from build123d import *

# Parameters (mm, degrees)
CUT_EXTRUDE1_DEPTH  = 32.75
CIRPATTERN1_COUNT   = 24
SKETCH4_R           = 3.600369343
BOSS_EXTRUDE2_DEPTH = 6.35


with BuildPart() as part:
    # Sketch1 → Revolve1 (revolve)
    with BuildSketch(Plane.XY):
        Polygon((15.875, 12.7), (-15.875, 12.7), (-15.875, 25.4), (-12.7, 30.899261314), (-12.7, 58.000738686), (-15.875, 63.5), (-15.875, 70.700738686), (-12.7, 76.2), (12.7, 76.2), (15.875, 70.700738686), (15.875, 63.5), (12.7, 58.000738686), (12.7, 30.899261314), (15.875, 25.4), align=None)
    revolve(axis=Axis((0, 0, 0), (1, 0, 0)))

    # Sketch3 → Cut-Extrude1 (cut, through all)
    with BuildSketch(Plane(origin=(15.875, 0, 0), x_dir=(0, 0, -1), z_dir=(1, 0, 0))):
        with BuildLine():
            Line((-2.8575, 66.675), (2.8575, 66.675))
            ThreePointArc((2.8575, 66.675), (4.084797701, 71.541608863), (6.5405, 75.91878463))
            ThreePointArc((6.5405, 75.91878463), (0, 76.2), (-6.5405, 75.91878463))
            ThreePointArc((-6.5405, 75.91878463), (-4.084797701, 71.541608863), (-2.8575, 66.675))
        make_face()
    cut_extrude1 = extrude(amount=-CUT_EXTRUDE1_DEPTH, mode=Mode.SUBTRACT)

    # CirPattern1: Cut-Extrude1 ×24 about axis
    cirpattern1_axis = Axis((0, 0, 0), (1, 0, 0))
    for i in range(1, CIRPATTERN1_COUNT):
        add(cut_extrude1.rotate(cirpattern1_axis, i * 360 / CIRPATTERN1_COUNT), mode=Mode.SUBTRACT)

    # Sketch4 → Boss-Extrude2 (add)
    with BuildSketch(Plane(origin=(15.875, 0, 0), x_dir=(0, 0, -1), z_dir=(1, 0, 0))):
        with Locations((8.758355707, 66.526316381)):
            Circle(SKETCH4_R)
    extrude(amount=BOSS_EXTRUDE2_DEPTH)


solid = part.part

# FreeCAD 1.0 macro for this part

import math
import FreeCAD as App
import Part
import Sketcher
Q = App.Units.Quantity

doc = App.newDocument("Part")
body = doc.addObject("PartDesign::Body", "Body")

# Sketch on XY plane
sketch1 = body.newObject("Sketcher::SketchObject", "Sketch")
sketch1.AttachmentSupport = (doc.getObject("XY_Plane"), [""])
sketch1.MapMode = "FlatFace"
sketch1.addGeometry(Part.LineSegment(App.Vector(-16, 13, 0), App.Vector(16, 13, 0)), False)
sketch1.addGeometry(Part.LineSegment(App.Vector(16, 13, 0), App.Vector(16, 25, 0)), False)
sketch1.addGeometry(Part.LineSegment(App.Vector(16, 25, 0), App.Vector(13, 31, 0)), False)
sketch1.addGeometry(Part.LineSegment(App.Vector(13, 31, 0), App.Vector(13, 58, 0)), False)
sketch1.addGeometry(Part.LineSegment(App.Vector(13, 58, 0), App.Vector(16, 64, 0)), False)
sketch1.addGeometry(Part.LineSegment(App.Vector(16, 64, 0), App.Vector(16, 71, 0)), False)
sketch1.addGeometry(Part.LineSegment(App.Vector(16, 71, 0), App.Vector(13, 76, 0)), False)
sketch1.addGeometry(Part.LineSegment(App.Vector(13, 76, 0), App.Vector(-13, 76, 0)), False)
sketch1.addGeometry(Part.LineSegment(App.Vector(-13, 76, 0), App.Vector(-16, 71, 0)), False)
sketch1.addGeometry(Part.LineSegment(App.Vector(-16, 71, 0), App.Vector(-16, 64, 0)), False)
sketch1.addGeometry(Part.LineSegment(App.Vector(-16, 64, 0), App.Vector(-13, 58, 0)), False)
sketch1.addGeometry(Part.LineSegment(App.Vector(-13, 58, 0), App.Vector(-13, 31, 0)), False)
sketch1.addGeometry(Part.LineSegment(App.Vector(-13, 31, 0), App.Vector(-16, 25, 0)), False)
sketch1.addGeometry(Part.LineSegment(App.Vector(-16, 25, 0), App.Vector(-16, 13, 0)), False)
sketch1.addConstraint(Sketcher.Constraint("Coincident", 0, 2, 1, 1))
sketch1.addConstraint(Sketcher.Constraint("Coincident", 1, 2, 2, 1))
sketch1.addConstraint(Sketcher.Constraint("Coincident", 2, 2, 3, 1))
sketch1.addConstraint(Sketcher.Constraint("Coincident", 3, 2, 4, 1))
sketch1.addConstraint(Sketcher.Constraint("Coincident", 4, 2, 5, 1))
sketch1.addConstraint(Sketcher.Constraint("Coincident", 5, 2, 6, 1))
sketch1.addConstraint(Sketcher.Constraint("Coincident", 6, 2, 7, 1))
sketch1.addConstraint(Sketcher.Constraint("Coincident", 7, 2, 8, 1))
sketch1.addConstraint(Sketcher.Constraint("Coincident", 8, 2, 9, 1))
sketch1.addConstraint(Sketcher.Constraint("Coincident", 9, 2, 10, 1))
sketch1.addConstraint(Sketcher.Constraint("Coincident", 10, 2, 11, 1))
sketch1.addConstraint(Sketcher.Constraint("Coincident", 11, 2, 12, 1))
sketch1.addConstraint(Sketcher.Constraint("Coincident", 12, 2, 13, 1))
sketch1.addConstraint(Sketcher.Constraint("Coincident", 13, 2, 0, 1))
sketch1.addConstraint(Sketcher.Constraint("Horizontal", 0))
sketch1.addConstraint(Sketcher.Constraint("Vertical", 1))
sketch1.addConstraint(Sketcher.Constraint("Vertical", 3))
sketch1.addConstraint(Sketcher.Constraint("Vertical", 5))
sketch1.addConstraint(Sketcher.Constraint("Horizontal", 7))
sketch1.addConstraint(Sketcher.Constraint("Vertical", 9))
sketch1.addConstraint(Sketcher.Constraint("Vertical", 11))
sketch1.addConstraint(Sketcher.Constraint("Vertical", 13))
sketch1.addConstraint(Sketcher.Constraint("Symmetric", 5, 2, 8, 2, -2))
sketch1.addConstraint(Sketcher.Constraint("Symmetric", 3, 2, 10, 2, -2))
sketch1.addConstraint(Sketcher.Constraint("Symmetric", 1, 2, 12, 2, -2))
sketch1.addConstraint(Sketcher.Constraint("Parallel", 2, 6))
sketch1.addConstraint(Sketcher.Constraint("Parallel", 4, 8))
sketch1.addConstraint(Sketcher.Constraint("Parallel", 6, 10))
sketch1.addConstraint(Sketcher.Constraint("Parallel", 8, 12))
sketch1.addConstraint(Sketcher.Constraint("Horizontal", 4, 2, 9, 2))
sketch1.addConstraint(Sketcher.Constraint("Vertical", 1, 2, 4, 2))
sketch1.addConstraint(Sketcher.Constraint("Vertical", 3, 2, 6, 2))
sketch1.addConstraint(Sketcher.Constraint("DistanceX", 7, 2, 7, 1, Q("1 in")))
sketch1.addConstraint(Sketcher.Constraint("DistanceY", 1, 1, 1, 2, Q("0.5 in")))
sketch1.addConstraint(Sketcher.Constraint("DistanceY", -1, 1, 1, 2, Q("1 in")))
sketch1.addConstraint(Sketcher.Constraint("DistanceY", -1, 1, 6, 2, Q("3 in")))
sketch1.addConstraint(Sketcher.Constraint("Angle", 2, Q("120 deg")))
sketch1.addConstraint(Sketcher.Constraint("DistanceY", 0, 2, 4, 2, Q("2 in")))
sketch1.addConstraint(Sketcher.Constraint("DistanceX", 0, 1, 0, 2, Q("1.25 in")))
revolution = body.newObject("PartDesign::Revolution", "Revolution")
revolution.Profile = sketch1
revolution.ReferenceAxis = (sketch1, ["H_Axis"])
revolution.Angle = 360

# Sketch on YZ plane
sketch2 = body.newObject("Sketcher::SketchObject", "Sketch001")
sketch2.AttachmentSupport = (doc.getObject("YZ_Plane"), [""])
sketch2.MapMode = "FlatFace"
sketch2.AttachmentOffset = App.Placement(App.Vector(0, 0, 0.625 * 25.4), App.Rotation())
sketch2.addGeometry(Part.LineSegment(App.Vector(67, 3, 0), App.Vector(67, -3, 0)), False)
sketch2.addGeometry(Part.ArcOfCircle(Part.Circle(App.Vector(64, -22, 0), App.Vector(0, 0, 1), 19), math.radians(53), math.radians(83)), False)
sketch2.addGeometry(Part.ArcOfCircle(Part.Circle(App.Vector(0, 0, 0), App.Vector(0, 0, 1), 76), math.radians(-4.92), math.radians(4.92)), False)
sketch2.addGeometry(Part.ArcOfCircle(Part.Circle(App.Vector(64, 22, 0), App.Vector(0, 0, 1), 19), math.radians(-83), math.radians(-53)), False)
sketch2.addConstraint(Sketcher.Constraint("Coincident", 0, 2, 1, 2))
sketch2.addConstraint(Sketcher.Constraint("Coincident", 1, 1, 2, 1))
sketch2.addConstraint(Sketcher.Constraint("Coincident", 2, 2, 3, 2))
sketch2.addConstraint(Sketcher.Constraint("Coincident", 3, 1, 0, 1))
sketch2.addConstraint(Sketcher.Constraint("Vertical", 0))
sketch2.addConstraint(Sketcher.Constraint("Coincident", 2, 3, -1, 1))
sketch2.addConstraint(Sketcher.Constraint("Equal", 1, 3))
sketch2.addConstraint(Sketcher.Constraint("Symmetric", 1, 3, 3, 3, -1))
sketch2.addConstraint(Sketcher.Constraint("Radius", 2, Q("3 in")))
sketch2.addConstraint(Sketcher.Constraint("Radius", 1, Q("0.75 in")))
sketch2.addConstraint(Sketcher.Constraint("DistanceY", 0, 2, 0, 1, Q("0.225 in")))
sketch2.addConstraint(Sketcher.Constraint("DistanceY", 0, 2, 2, 2, Q("0.37 in")))
sketch2.addConstraint(Sketcher.Constraint("DistanceX", -1, 1, 0, 2, Q("2.625 in")))
pocket1 = body.newObject("PartDesign::Pocket", "Pocket")
pocket1.Profile = sketch2
pocket1.Type = "ThroughAll"
doc.recompute()

polarpattern = body.newObject("PartDesign::PolarPattern", "PolarPattern")
polarpattern.Originals = [pocket1]
polarpattern.Axis = (doc.getObject("X_Axis"), [""])
polarpattern.Angle = 360
polarpattern.Occurrences = 24
body.Tip = polarpattern

# Sketch on YZ plane
sketch3 = body.newObject("Sketcher::SketchObject", "Sketch002")
sketch3.AttachmentSupport = (doc.getObject("YZ_Plane"), [""])
sketch3.MapMode = "FlatFace"
sketch3.AttachmentOffset = App.Placement(App.Vector(0, 0, 0.625 * 25.4), App.Rotation())
sketch3.addGeometry(Part.Circle(App.Vector(66.5, -8.8, 0), App.Vector(0, 0, 1), 3.6), False)
sketch3.addConstraint(Sketcher.Constraint("Diameter", 0, Q("7.200739 mm")))
sketch3.addConstraint(Sketcher.Constraint("DistanceX", -1, 1, 0, 3, Q("66.526316 mm")))
sketch3.addConstraint(Sketcher.Constraint("DistanceY", 0, 3, -1, 1, Q("8.758356 mm")))
pad1 = body.newObject("PartDesign::Pad", "Pad")
pad1.Profile = sketch3
pad1.Length = Q("0.25 in")

doc.recompute()
